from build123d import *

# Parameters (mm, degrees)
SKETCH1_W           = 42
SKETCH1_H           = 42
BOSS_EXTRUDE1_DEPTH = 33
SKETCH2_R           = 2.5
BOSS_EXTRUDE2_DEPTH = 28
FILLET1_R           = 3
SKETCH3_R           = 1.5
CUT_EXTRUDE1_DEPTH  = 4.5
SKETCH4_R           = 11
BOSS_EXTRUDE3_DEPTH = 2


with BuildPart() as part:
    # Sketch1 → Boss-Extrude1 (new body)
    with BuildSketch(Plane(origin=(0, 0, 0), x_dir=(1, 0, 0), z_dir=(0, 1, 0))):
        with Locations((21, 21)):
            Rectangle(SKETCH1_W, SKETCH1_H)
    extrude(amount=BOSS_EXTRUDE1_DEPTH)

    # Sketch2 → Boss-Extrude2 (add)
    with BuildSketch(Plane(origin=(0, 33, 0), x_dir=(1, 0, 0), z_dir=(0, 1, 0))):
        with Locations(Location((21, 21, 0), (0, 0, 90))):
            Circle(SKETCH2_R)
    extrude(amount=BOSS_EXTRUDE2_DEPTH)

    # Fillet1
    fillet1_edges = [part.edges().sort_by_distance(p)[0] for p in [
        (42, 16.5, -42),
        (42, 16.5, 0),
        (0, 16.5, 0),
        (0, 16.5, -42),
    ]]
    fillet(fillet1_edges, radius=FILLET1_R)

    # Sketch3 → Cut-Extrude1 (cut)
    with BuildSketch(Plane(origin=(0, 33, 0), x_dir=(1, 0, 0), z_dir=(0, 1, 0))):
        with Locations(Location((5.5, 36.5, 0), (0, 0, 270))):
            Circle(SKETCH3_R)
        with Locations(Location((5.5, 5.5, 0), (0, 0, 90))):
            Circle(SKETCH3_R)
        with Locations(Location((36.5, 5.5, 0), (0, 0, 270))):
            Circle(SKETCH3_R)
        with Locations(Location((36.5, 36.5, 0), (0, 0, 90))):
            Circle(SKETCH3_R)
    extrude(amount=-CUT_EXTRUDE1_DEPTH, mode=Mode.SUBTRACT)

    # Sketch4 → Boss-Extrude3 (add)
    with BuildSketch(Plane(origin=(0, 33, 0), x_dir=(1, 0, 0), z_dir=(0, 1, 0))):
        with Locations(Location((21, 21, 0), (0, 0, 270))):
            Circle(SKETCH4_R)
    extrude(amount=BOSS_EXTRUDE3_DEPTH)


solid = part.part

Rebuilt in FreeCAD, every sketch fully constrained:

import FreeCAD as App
import Part
import Sketcher

V = App.Vector
Q = App.Units.Quantity


def edges_at(feature, points):
    """Names of the edges that pass closest to the given points."""
    edges = feature.Shape.Edges
    near = lambda p: min(range(len(edges)), key=lambda i: edges[i].distToShape(Part.Vertex(*p))[0])
    return sorted({f"Edge{near(p) + 1}" for p in points})

doc = App.newDocument("Part")
body = doc.addObject("PartDesign::Body", "Body")

sketch1 = body.newObject("Sketcher::SketchObject", "Sketch")
sketch1.AttachmentSupport = (doc.getObject("XZ_Plane"), [""])
sketch1.MapMode = "FlatFace"
sketch1.addGeometry([
    Part.LineSegment(V(0, -42, 0), V(0, 0, 0)),
    Part.LineSegment(V(0, 0, 0), V(42, 0, 0)),
    Part.LineSegment(V(42, 0, 0), V(42, -42, 0)),
    Part.LineSegment(V(42, -42, 0), V(0, -42, 0)),
], False)
sketch1.addConstraint([
    Sketcher.Constraint("Coincident", 0, 2, 1, 1),
    Sketcher.Constraint("Coincident", 1, 2, 2, 1),
    Sketcher.Constraint("Coincident", 2, 2, 3, 1),
    Sketcher.Constraint("Coincident", 3, 2, 0, 1),
    Sketcher.Constraint("Vertical", 0),
    Sketcher.Constraint("Horizontal", 1),
    Sketcher.Constraint("Vertical", 2),
    Sketcher.Constraint("Horizontal", 3),
    Sketcher.Constraint("Coincident", 0, 2, -1, 1),
    Sketcher.Constraint("Equal", 3, 0),
    Sketcher.Constraint("DistanceX", 1, 1, 1, 2, Q("42 mm")),
])
pad1 = body.newObject("PartDesign::Pad", "Pad")
pad1.Profile = sketch1
pad1.Length = 33
pad1.Reversed = True

sketch2 = body.newObject("Sketcher::SketchObject", "Sketch001")
sketch2.AttachmentSupport = (doc.getObject("XZ_Plane"), [""])
sketch2.MapMode = "FlatFace"
sketch2.AttachmentOffset = App.Placement(V(0, 0, -33), App.Rotation())
sketch2.addGeometry(Part.Circle(V(21, -21, 0), V(0, 0, 1), 2.5), False)
sketch2.addConstraint([
    Sketcher.Constraint("Diameter", 0, Q("5 mm")),
    Sketcher.Constraint("DistanceX", -1, 1, 0, 3, Q("21 mm")),
    Sketcher.Constraint("DistanceY", 0, 3, -1, 1, Q("21 mm")),
])
pad2 = body.newObject("PartDesign::Pad", "Pad001")
pad2.Profile = sketch2
pad2.Length = 28
pad2.Reversed = True
doc.recompute()

fillet = body.newObject("PartDesign::Fillet", "Fillet")
fillet.Base = (pad2, edges_at(pad2, [
    (42, 16.5, -42),
    (42, 16.5, 0),
    (0, 16.5, 0),
    (0, 16.5, -42),
]))
fillet.Radius = 3

sketch3 = body.newObject("Sketcher::SketchObject", "Sketch002")
sketch3.AttachmentSupport = (doc.getObject("XZ_Plane"), [""])
sketch3.MapMode = "FlatFace"
sketch3.AttachmentOffset = App.Placement(V(0, 0, -33), App.Rotation())
sketch3.addGeometry([
    Part.Circle(V(5.5, -36.5, 0), V(0, 0, 1), 1.5),
    Part.Circle(V(5.5, -5.5, 0), V(0, 0, 1), 1.5),
    Part.Circle(V(36.5, -5.5, 0), V(0, 0, 1), 1.5),
    Part.Circle(V(36.5, -36.5, 0), V(0, 0, 1), 1.5),
], False)
sketch3.addConstraint([
    Sketcher.Constraint("Equal", 0, 1),
    Sketcher.Constraint("Equal", 1, 2),
    Sketcher.Constraint("Equal", 2, 3),
    Sketcher.Constraint("Horizontal", 1, 3, 2, 3),
    Sketcher.Constraint("Horizontal", 0, 3, 3, 3),
    Sketcher.Constraint("Vertical", 0, 3, 1, 3),
    Sketcher.Constraint("Vertical", 2, 3, 3, 3),
    Sketcher.Constraint("Diameter", 0, Q("3 mm")),
    Sketcher.Constraint("DistanceY", 0, 3, 1, 3, Q("31 mm")),
    Sketcher.Constraint("DistanceX", 1, 3, 2, 3, Q("31 mm")),
    Sketcher.Constraint("DistanceX", -1, 1, 0, 3, Q("5.5 mm")),
    Sketcher.Constraint("DistanceY", 0, 3, -1, 1, Q("36.5 mm")),
])
pocket1 = body.newObject("PartDesign::Pocket", "Pocket")
pocket1.Profile = sketch3
pocket1.Length = 4.5
pocket1.Reversed = True

sketch4 = body.newObject("Sketcher::SketchObject", "Sketch003")
sketch4.AttachmentSupport = (doc.getObject("XZ_Plane"), [""])
sketch4.MapMode = "FlatFace"
sketch4.AttachmentOffset = App.Placement(V(0, 0, -33), App.Rotation())
sketch4.addGeometry(Part.Circle(V(21, -21, 0), V(0, 0, 1), 11), False)
sketch4.addConstraint([
    Sketcher.Constraint("Diameter", 0, Q("22 mm")),
    Sketcher.Constraint("DistanceX", -1, 1, 0, 3, Q("21 mm")),
    Sketcher.Constraint("DistanceY", 0, 3, -1, 1, Q("21 mm")),
])
pad3 = body.newObject("PartDesign::Pad", "Pad002")
pad3.Profile = sketch4
pad3.Length = 2
pad3.Reversed = True

doc.recompute()
